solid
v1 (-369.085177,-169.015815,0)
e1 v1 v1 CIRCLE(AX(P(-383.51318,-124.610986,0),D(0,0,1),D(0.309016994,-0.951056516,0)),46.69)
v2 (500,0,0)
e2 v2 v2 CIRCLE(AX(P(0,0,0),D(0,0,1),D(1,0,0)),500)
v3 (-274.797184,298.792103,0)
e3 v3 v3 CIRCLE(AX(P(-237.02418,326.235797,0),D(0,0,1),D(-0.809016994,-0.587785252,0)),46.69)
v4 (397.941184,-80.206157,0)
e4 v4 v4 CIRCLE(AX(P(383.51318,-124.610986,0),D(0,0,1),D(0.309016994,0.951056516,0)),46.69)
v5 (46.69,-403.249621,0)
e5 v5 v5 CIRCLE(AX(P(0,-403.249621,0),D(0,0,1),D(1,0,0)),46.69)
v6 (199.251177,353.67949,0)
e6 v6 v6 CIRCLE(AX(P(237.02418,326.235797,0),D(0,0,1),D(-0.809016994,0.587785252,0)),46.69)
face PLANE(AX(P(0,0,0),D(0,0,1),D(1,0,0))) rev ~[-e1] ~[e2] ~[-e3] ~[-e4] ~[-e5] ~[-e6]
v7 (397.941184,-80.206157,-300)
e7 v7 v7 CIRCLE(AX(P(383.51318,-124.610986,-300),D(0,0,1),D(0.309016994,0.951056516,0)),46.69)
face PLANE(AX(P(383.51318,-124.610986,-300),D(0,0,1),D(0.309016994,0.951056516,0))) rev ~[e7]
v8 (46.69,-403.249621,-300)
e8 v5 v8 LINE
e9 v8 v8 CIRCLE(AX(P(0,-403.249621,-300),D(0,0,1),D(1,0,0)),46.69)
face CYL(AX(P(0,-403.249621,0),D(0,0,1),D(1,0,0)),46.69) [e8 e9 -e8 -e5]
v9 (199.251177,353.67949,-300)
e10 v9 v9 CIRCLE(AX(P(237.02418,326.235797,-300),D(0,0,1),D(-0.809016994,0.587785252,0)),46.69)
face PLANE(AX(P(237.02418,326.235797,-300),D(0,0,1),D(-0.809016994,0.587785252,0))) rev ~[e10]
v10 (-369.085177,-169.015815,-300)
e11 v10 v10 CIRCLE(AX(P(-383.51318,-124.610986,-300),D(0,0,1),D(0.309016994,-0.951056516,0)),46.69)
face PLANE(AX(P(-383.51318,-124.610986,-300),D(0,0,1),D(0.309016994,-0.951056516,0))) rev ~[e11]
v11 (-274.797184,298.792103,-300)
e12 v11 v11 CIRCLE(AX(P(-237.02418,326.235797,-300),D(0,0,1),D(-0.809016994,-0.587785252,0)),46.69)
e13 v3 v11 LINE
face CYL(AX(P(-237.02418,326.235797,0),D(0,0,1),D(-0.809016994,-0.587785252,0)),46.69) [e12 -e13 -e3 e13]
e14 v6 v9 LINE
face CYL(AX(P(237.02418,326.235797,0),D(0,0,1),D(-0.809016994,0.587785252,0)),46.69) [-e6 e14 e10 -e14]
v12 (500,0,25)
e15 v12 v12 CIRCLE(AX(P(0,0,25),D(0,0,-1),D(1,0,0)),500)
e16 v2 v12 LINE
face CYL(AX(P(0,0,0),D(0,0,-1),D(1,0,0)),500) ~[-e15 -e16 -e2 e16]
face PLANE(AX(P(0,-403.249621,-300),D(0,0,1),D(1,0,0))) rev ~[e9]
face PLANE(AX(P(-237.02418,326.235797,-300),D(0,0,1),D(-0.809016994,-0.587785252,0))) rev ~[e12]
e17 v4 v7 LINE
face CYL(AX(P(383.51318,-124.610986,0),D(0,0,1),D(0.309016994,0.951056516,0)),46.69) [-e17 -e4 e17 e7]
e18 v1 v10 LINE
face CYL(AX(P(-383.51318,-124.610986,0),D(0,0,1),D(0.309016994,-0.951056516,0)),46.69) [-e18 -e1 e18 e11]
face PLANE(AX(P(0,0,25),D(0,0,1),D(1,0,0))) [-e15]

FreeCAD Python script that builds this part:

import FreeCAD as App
import Part
import Sketcher

V = App.Vector
Q = App.Units.Quantity

doc = App.newDocument("Part")
params = doc.addObject("Spreadsheet::Sheet", "Params")
for row, (alias, value) in enumerate([
    ("sketch1_diameter", "1000 mm"),
    ("pad1_length", "25 mm"),
    ("sketch2_diameter", "93.38 mm"),
    ("pad2_length", "300 mm"),
], start=1):
    params.set(f"A{row}", alias)
    params.set(f"B{row}", "=" + value)
    params.setAlias(f"B{row}", alias)

body = doc.addObject("PartDesign::Body", "Body")

# Sketch on XY plane
sketch1 = body.newObject("Sketcher::SketchObject", "Sketch")
sketch1.AttachmentSupport = (doc.getObject("XY_Plane"), [""])
sketch1.MapMode = "FlatFace"
sketch1.addGeometry(Part.Circle(V(0, 0, 0), V(0, 0, 1), 500), False)
sketch1.addConstraint([
    Sketcher.Constraint("Coincident", 0, 3, -1, 1),
    Sketcher.Constraint("Diameter", 0, Q("1000 mm")),
])
sketch1.setExpression("Constraints[1]", "Params.sketch1_diameter")
pad1 = body.newObject("PartDesign::Pad", "Pad")
pad1.Profile = sketch1
pad1.setExpression("Length", "Params.pad1_length")

# Sketch on XY plane
sketch2 = body.newObject("Sketcher::SketchObject", "Sketch001")
sketch2.AttachmentSupport = (doc.getObject("XY_Plane"), [""])
sketch2.MapMode = "FlatFace"
sketch2.addGeometry(Part.Circle(V(0, -403, 0), V(0, 0, 1), 47), False)
sketch2.addConstraint([
    Sketcher.Constraint("PointOnObject", 0, 3, -2),
    Sketcher.Constraint("Diameter", 0, Q("93.38 mm")),
    Sketcher.Constraint("DistanceY", 0, 3, -1, 1, Q("403.249621 mm")),
])
sketch2.setExpression("Constraints[1]", "Params.sketch2_diameter")
pad2 = body.newObject("PartDesign::Pad", "Pad001")
pad2.Profile = sketch2
pad2.setExpression("Length", "Params.pad2_length")
pad2.Reversed = True
body2 = doc.addObject("PartDesign::Body", "Body001")
doc.recompute()

body2.BaseFeature = body
doc.recompute()

body3 = doc.addObject("PartDesign::Body", "Body002")
body3.BaseFeature = body
body3.Placement = App.Placement(V(0, 0, 0), App.Rotation(V(0, 0, 1), 72))
boolean = body2.newObject("PartDesign::Boolean", "Boolean")
boolean.Type = "Fuse"
boolean.addObjects([body3])
doc.recompute()

body4 = doc.addObject("PartDesign::Body", "Body003")
body4.BaseFeature = body
body4.Placement = App.Placement(V(0, 0, 0), App.Rotation(V(0, 0, 1), 144))
boolean2 = body2.newObject("PartDesign::Boolean", "Boolean001")
boolean2.Type = "Fuse"
boolean2.addObjects([body4])
doc.recompute()

body5 = doc.addObject("PartDesign::Body", "Body004")
body5.BaseFeature = body
body5.Placement = App.Placement(V(0, 0, 0), App.Rotation(V(0, 0, 1), 216))
boolean3 = body2.newObject("PartDesign::Boolean", "Boolean002")
boolean3.Type = "Fuse"
boolean3.addObjects([body5])
doc.recompute()

body.Placement = App.Placement(V(0, 0, 0), App.Rotation(V(0, 0, 1), 288))
boolean4 = body2.newObject("PartDesign::Boolean", "Boolean003")
boolean4.Type = "Fuse"
boolean4.addObjects([body])

doc.recompute()
